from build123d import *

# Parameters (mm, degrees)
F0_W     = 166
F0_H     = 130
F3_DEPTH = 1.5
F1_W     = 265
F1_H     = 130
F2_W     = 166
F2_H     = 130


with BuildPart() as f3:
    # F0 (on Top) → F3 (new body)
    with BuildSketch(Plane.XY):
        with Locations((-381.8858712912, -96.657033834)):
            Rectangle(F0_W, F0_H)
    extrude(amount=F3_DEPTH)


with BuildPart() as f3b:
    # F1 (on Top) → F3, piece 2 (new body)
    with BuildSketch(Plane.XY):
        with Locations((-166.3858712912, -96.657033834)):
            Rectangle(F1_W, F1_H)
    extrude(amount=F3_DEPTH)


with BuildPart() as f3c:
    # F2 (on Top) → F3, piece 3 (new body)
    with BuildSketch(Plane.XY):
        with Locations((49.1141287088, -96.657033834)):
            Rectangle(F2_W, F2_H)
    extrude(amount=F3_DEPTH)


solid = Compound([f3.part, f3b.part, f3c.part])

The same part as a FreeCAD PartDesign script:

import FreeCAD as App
import Part
import Sketcher
from FreeCAD import Vector


def add_polygon(sketch, points):
    """Adds a closed chain of lines whose ends are joined by coincident constraints."""
    first, n = sketch.GeometryCount, len(points)
    for a, b in zip(points, points[1:] + points[:1]):
        sketch.addGeometry(Part.LineSegment(App.Vector(*a, 0), App.Vector(*b, 0)), False)
    for i in range(n):
        sketch.addConstraint(Sketcher.Constraint("Coincident", first + i, 2, first + (i + 1) % n, 1))

doc = App.newDocument("Part")
body = doc.addObject("PartDesign::Body", "Body")

sketch1 = doc.addObject("Sketcher::SketchObject", "Sketch")
body.addObject(sketch1)
sketch1.AttachmentSupport = (doc.XY_Plane, [""])
sketch1.MapMode = "FlatFace"
add_polygon(sketch1, [(-465, -32), (-465, -162), (-299, -162), (-299, -32)])
sketch1.addConstraint(Sketcher.Constraint("Vertical", 0))
sketch1.addConstraint(Sketcher.Constraint("Horizontal", 1))
sketch1.addConstraint(Sketcher.Constraint("Vertical", 2))
sketch1.addConstraint(Sketcher.Constraint("Horizontal", 3))
sketch1.addConstraint(Sketcher.Constraint("DistanceX", 1, 1, 1, 2, 166.0))
sketch1.addConstraint(Sketcher.Constraint("DistanceY", 0, 2, 0, 1, 130.0))
sketch1.addConstraint(Sketcher.Constraint("DistanceX", 0, 2, -1, 1, 464.885871))
sketch1.addConstraint(Sketcher.Constraint("DistanceY", 0, 2, -1, 1, 161.657034))
pad1 = doc.addObject("PartDesign::Pad", "Pad")
body.addObject(pad1)
pad1.Profile = sketch1
pad1.Length = 1.5
body2 = doc.addObject("PartDesign::Body", "Body001")

sketch2 = doc.addObject("Sketcher::SketchObject", "Sketch001")
body2.addObject(sketch2)
sketch2.AttachmentSupport = (doc.getObject("XY_Plane001"), [""])
sketch2.MapMode = "FlatFace"
add_polygon(sketch2, [(-299, -32), (-299, -162), (-34, -162), (-34, -32)])
sketch2.addConstraint(Sketcher.Constraint("Vertical", 0))
sketch2.addConstraint(Sketcher.Constraint("Horizontal", 1))
sketch2.addConstraint(Sketcher.Constraint("Vertical", 2))
sketch2.addConstraint(Sketcher.Constraint("Horizontal", 3))
sketch2.addConstraint(Sketcher.Constraint("DistanceX", 1, 1, 1, 2, 265.0))
sketch2.addConstraint(Sketcher.Constraint("DistanceY", 0, 2, 0, 1, 130.0))
sketch2.addConstraint(Sketcher.Constraint("DistanceX", 0, 2, -1, 1, 298.885871))
sketch2.addConstraint(Sketcher.Constraint("DistanceY", 0, 2, -1, 1, 161.657034))
pad2 = doc.addObject("PartDesign::Pad", "Pad001")
body2.addObject(pad2)
pad2.Profile = sketch2
pad2.Length = 1.5
body3 = doc.addObject("PartDesign::Body", "Body002")

sketch3 = doc.addObject("Sketcher::SketchObject", "Sketch002")
body3.addObject(sketch3)
sketch3.AttachmentSupport = (doc.getObject("XY_Plane002"), [""])
sketch3.MapMode = "FlatFace"
add_polygon(sketch3, [(-34, -32), (-34, -162), (132, -162), (132, -32)])
sketch3.addConstraint(Sketcher.Constraint("Vertical", 0))
sketch3.addConstraint(Sketcher.Constraint("Horizontal", 1))
sketch3.addConstraint(Sketcher.Constraint("Vertical", 2))
sketch3.addConstraint(Sketcher.Constraint("Horizontal", 3))
sketch3.addConstraint(Sketcher.Constraint("DistanceX", 1, 1, 1, 2, 166.0))
sketch3.addConstraint(Sketcher.Constraint("DistanceY", 0, 2, 0, 1, 130.0))
sketch3.addConstraint(Sketcher.Constraint("DistanceX", 0, 2, -1, 1, 33.885871))
sketch3.addConstraint(Sketcher.Constraint("DistanceY", 0, 2, -1, 1, 161.657034))
pad3 = doc.addObject("PartDesign::Pad", "Pad002")
body3.addObject(pad3)
pad3.Profile = sketch3
pad3.Length = 1.5

doc.recompute()
